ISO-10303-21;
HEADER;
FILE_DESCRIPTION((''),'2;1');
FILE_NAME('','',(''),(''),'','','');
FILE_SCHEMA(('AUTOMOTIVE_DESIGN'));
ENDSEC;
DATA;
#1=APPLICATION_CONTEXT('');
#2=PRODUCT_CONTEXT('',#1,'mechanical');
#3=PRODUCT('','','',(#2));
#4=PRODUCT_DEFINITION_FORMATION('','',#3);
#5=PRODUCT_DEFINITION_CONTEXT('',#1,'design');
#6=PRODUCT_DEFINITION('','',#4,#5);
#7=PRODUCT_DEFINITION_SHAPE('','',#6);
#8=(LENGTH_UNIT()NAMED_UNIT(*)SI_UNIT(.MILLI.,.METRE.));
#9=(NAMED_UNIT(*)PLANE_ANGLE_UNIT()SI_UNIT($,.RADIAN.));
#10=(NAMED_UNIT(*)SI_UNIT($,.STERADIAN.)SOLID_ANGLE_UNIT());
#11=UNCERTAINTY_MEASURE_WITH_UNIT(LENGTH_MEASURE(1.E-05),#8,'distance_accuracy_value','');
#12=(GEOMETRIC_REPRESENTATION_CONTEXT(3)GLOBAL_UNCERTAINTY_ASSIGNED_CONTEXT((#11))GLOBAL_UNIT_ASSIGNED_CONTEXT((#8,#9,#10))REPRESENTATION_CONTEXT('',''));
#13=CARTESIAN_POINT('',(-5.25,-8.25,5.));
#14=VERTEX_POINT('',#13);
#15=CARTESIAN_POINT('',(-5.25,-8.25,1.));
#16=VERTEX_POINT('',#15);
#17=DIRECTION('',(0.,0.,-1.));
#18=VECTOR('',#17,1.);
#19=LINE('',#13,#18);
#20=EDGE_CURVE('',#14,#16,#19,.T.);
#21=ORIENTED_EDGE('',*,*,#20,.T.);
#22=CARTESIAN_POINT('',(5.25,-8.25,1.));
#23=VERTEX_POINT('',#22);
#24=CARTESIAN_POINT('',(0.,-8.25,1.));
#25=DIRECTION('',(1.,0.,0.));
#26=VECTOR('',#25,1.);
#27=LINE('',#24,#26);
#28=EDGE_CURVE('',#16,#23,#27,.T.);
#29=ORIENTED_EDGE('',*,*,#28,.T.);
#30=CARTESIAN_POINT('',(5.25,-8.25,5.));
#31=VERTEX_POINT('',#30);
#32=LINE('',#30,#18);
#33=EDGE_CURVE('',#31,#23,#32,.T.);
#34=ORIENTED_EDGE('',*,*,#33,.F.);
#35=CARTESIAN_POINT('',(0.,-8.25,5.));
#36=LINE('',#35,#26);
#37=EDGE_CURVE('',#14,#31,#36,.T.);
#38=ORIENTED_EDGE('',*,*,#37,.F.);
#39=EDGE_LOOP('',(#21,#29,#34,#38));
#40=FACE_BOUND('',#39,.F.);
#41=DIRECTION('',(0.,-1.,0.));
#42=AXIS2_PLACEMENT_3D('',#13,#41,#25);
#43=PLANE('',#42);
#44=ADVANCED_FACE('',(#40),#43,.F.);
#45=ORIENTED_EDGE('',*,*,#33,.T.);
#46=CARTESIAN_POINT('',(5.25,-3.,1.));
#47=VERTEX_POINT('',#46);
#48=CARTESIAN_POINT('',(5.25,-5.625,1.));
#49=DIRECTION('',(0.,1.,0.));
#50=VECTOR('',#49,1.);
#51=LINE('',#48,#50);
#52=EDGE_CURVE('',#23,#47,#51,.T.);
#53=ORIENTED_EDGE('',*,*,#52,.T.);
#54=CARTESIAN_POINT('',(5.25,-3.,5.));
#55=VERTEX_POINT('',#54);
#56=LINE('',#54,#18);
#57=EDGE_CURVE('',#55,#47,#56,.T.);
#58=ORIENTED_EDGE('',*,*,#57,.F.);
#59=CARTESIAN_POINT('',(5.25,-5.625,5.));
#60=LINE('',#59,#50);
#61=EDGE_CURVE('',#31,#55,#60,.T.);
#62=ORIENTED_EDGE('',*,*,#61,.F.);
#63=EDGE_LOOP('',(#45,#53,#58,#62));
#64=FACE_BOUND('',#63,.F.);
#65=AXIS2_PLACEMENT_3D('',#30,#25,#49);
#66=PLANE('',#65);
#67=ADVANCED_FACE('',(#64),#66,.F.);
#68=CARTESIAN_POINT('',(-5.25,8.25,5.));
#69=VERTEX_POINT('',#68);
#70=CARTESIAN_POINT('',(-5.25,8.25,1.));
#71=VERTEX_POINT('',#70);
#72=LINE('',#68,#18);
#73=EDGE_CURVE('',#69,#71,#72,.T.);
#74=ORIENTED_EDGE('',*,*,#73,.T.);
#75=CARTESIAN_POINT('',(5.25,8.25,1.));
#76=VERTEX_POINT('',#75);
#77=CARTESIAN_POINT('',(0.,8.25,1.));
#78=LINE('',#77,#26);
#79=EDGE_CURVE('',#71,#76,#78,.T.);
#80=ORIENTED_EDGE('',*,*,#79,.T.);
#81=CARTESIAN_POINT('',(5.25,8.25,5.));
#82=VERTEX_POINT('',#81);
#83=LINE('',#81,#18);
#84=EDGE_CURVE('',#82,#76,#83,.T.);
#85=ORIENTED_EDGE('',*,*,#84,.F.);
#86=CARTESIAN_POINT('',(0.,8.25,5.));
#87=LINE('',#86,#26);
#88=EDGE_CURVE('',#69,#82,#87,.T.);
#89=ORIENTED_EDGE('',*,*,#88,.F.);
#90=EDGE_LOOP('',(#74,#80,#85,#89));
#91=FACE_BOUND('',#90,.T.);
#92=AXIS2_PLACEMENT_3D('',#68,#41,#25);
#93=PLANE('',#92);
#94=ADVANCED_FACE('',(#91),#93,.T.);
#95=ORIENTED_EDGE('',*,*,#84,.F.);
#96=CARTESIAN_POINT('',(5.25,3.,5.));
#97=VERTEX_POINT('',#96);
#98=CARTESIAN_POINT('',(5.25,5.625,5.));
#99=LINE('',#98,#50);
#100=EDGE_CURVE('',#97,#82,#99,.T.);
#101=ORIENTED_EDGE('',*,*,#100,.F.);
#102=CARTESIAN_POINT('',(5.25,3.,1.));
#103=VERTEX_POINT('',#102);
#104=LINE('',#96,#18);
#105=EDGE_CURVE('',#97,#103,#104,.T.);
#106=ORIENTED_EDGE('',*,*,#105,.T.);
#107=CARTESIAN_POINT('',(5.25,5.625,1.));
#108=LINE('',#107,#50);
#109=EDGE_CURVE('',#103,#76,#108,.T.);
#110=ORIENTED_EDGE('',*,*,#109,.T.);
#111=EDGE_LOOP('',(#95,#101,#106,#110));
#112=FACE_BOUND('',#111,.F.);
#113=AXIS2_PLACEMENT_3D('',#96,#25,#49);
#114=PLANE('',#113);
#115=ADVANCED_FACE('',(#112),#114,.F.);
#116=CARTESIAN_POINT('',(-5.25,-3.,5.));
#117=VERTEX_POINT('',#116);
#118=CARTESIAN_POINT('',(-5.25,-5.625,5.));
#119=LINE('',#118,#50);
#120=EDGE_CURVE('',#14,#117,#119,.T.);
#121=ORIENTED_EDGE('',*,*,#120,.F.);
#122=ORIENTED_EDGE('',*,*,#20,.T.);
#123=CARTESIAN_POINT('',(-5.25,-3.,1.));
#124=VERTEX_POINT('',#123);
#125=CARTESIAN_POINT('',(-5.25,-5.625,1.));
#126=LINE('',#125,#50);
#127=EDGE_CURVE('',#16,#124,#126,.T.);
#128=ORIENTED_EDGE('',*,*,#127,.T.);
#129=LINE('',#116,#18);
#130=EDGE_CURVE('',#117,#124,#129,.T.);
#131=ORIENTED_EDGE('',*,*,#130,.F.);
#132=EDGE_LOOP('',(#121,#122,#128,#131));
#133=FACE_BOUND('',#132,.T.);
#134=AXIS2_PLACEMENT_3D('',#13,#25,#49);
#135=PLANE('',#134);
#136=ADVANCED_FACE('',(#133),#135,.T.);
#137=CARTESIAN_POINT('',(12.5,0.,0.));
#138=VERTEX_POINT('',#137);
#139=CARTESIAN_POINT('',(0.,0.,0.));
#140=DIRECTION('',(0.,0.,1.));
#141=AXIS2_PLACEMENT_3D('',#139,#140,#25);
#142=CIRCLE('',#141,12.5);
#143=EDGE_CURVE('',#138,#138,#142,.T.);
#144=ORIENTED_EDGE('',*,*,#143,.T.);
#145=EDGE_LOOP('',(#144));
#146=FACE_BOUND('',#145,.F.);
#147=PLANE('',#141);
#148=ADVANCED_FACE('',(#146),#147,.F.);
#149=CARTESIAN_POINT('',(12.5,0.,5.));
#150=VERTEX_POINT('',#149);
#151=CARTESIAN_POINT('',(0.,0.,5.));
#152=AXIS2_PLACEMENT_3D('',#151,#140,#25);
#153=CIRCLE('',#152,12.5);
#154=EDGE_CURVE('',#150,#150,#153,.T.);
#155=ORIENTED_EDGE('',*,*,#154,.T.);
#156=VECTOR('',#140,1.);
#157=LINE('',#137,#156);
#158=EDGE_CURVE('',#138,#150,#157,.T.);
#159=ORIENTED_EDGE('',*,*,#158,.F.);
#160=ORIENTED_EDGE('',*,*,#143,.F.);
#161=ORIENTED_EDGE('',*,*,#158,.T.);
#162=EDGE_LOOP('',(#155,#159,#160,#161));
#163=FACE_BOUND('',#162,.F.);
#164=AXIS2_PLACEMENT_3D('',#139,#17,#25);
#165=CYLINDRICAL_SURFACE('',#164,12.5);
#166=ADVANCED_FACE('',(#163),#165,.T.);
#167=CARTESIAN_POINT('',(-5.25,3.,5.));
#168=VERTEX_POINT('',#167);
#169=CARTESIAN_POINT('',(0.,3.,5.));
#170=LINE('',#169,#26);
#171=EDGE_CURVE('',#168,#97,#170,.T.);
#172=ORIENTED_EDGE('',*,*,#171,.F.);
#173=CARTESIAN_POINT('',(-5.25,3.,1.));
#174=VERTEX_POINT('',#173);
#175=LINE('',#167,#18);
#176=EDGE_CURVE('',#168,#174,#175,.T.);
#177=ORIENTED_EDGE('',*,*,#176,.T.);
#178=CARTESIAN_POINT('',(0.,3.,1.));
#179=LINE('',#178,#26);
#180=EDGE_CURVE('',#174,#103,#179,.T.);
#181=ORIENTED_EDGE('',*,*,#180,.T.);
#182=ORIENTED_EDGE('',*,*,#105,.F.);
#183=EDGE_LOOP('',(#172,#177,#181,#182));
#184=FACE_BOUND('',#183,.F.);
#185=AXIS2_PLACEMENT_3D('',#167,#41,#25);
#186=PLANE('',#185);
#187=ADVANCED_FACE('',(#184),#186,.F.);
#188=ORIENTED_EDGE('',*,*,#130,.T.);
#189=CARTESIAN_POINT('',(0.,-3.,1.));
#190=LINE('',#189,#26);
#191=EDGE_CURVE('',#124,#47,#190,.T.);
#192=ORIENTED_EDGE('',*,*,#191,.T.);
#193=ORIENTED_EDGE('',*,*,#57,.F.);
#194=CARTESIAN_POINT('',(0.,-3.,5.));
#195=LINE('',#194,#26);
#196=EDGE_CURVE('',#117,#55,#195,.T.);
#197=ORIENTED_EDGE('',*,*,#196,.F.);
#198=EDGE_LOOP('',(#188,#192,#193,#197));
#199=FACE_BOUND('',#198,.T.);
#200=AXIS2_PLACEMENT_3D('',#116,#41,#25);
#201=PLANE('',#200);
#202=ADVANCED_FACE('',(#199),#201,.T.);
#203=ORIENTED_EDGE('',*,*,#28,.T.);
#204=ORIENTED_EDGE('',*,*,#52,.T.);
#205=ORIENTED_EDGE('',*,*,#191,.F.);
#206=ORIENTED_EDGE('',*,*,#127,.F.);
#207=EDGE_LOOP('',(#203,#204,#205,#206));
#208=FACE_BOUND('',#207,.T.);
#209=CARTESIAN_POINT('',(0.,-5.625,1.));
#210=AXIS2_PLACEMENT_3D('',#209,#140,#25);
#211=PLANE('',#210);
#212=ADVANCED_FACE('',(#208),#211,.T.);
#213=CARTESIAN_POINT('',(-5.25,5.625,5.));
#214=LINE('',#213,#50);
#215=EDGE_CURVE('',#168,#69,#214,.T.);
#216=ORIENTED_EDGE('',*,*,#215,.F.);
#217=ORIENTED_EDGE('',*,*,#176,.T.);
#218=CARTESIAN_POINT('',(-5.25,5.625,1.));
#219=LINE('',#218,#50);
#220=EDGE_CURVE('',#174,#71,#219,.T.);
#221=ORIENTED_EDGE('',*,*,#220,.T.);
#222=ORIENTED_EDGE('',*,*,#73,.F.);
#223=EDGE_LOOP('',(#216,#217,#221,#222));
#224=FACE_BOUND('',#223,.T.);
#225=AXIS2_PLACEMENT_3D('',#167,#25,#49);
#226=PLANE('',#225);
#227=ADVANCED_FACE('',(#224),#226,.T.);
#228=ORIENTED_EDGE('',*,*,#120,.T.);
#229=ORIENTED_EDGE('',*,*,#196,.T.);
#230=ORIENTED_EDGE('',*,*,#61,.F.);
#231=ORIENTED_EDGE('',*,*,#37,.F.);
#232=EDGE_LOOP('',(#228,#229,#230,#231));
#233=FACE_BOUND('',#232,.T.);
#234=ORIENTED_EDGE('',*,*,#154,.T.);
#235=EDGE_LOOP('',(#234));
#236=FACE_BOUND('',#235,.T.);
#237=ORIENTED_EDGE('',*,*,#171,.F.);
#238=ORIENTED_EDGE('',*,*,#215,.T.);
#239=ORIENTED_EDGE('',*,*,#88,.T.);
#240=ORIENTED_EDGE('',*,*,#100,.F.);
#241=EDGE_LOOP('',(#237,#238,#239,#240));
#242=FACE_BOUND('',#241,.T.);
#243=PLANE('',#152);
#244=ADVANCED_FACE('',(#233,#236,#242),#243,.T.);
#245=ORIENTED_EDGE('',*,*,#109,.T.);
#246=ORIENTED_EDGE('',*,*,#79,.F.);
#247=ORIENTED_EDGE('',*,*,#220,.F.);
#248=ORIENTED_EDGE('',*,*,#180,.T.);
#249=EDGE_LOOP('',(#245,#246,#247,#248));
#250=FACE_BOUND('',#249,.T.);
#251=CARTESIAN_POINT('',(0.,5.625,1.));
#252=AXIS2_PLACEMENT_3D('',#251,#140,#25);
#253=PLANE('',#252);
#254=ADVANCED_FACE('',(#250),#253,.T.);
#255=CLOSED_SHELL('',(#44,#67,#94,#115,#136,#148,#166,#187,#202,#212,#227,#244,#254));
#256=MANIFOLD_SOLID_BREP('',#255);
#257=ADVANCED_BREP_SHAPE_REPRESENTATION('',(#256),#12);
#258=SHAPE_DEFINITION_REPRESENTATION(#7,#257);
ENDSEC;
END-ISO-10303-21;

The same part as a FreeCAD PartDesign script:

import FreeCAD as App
import Part
import Sketcher
from FreeCAD import Vector
Q = App.Units.Quantity

doc = App.newDocument("Part")
params = doc.addObject("Spreadsheet::Sheet", "Params")
for row, (alias, value) in enumerate([
    ("sketch1_diameter", "25 mm"),
    ("pad1_length", "5 mm"),
    ("sketch2_width", "10.5 mm"),
    ("sketch2_height", "5.25 mm"),
    ("pad2_length", "4 mm"),
], start=1):
    params.set(f"A{row}", alias)
    params.set(f"B{row}", "=" + value)
    params.setAlias(f"B{row}", alias)

body = doc.addObject("PartDesign::Body", "Body")

# Sketch on XY plane
sketch1 = body.newObject("Sketcher::SketchObject", "Sketch")
sketch1.AttachmentSupport = (doc.getObject("XY_Plane"), [""])
sketch1.MapMode = "FlatFace"
sketch1.addGeometry(Part.Circle(Vector(0, 0, 0), Vector(0, 0, 1), 12), False)
sketch1.addConstraint([
    Sketcher.Constraint("Coincident", 0, 3, -1, 1),
    Sketcher.Constraint("Diameter", 0, Q("25 mm")),
])
sketch1.setExpression("Constraints[1]", "Params.sketch1_diameter")
pad1 = body.newObject("PartDesign::Pad", "Pad")
pad1.Profile = sketch1
pad1.setExpression("Length", "Params.pad1_length")
body2 = doc.addObject("PartDesign::Body", "Body001")
body2.AllowCompound = True

# Sketch on XY plane
sketch2 = body2.newObject("Sketcher::SketchObject", "Sketch001")
sketch2.AttachmentSupport = (doc.getObject("XY_Plane001"), [""])
sketch2.MapMode = "FlatFace"
sketch2.AttachmentOffset = App.Placement(Vector(0, 0, 5), App.Rotation())
sketch2.addGeometry([
    Part.LineSegment(Vector(-5, 8, 0), Vector(-5, 3, 0)),  # 0
    Part.LineSegment(Vector(-5, 3, 0), Vector(5, 3, 0)),  # 1
    Part.LineSegment(Vector(5, 3, 0), Vector(5, 8, 0)),  # 2
    Part.LineSegment(Vector(5, 8, 0), Vector(-5, 8, 0)),  # 3
    Part.LineSegment(Vector(-5, -3, 0), Vector(-5, -8, 0)),  # 4
    Part.LineSegment(Vector(-5, -8, 0), Vector(5, -8, 0)),  # 5
    Part.LineSegment(Vector(5, -8, 0), Vector(5, -3, 0)),  # 6
    Part.LineSegment(Vector(5, -3, 0), Vector(-5, -3, 0)),  # 7
], False)
sketch2.addConstraint([
    Sketcher.Constraint("Coincident", 0, 2, 1, 1),
    Sketcher.Constraint("Coincident", 1, 2, 2, 1),
    Sketcher.Constraint("Coincident", 2, 2, 3, 1),
    Sketcher.Constraint("Coincident", 3, 2, 0, 1),
    Sketcher.Constraint("Coincident", 4, 2, 5, 1),
    Sketcher.Constraint("Coincident", 5, 2, 6, 1),
    Sketcher.Constraint("Coincident", 6, 2, 7, 1),
    Sketcher.Constraint("Coincident", 7, 2, 4, 1),
    Sketcher.Constraint("Vertical", 0),
    Sketcher.Constraint("Horizontal", 1),
    Sketcher.Constraint("Vertical", 2),
    Sketcher.Constraint("Horizontal", 3),
    Sketcher.Constraint("Vertical", 4),
    Sketcher.Constraint("Horizontal", 5),
    Sketcher.Constraint("Vertical", 6),
    Sketcher.Constraint("Horizontal", 7),
    Sketcher.Constraint("Symmetric", 2, 2, 4, 2, -1, 1),
    Sketcher.Constraint("Symmetric", 0, 2, 6, 2, -1, 1),
    Sketcher.Constraint("Vertical", 3, 2, 4, 2),
    Sketcher.Constraint("DistanceX", 1, 1, 1, 2, Q("10.5 mm")),
    Sketcher.Constraint("DistanceY", -1, 1, 0, 2, Q("3 mm")),
    Sketcher.Constraint("DistanceY", 0, 2, 0, 1, Q("5.25 mm")),
])
sketch2.setExpression("Constraints[19]", "Params.sketch2_width")
sketch2.setExpression("Constraints[21]", "Params.sketch2_height")
pad2 = body2.newObject("PartDesign::Pad", "Pad001")
pad2.Profile = sketch2
pad2.setExpression("Length", "Params.pad2_length")
pad2.Reversed = True
doc.recompute()

boolean = body.newObject("PartDesign::Boolean", "Boolean")
boolean.Type = "Cut"
boolean.addObjects([body2])

doc.recompute()
